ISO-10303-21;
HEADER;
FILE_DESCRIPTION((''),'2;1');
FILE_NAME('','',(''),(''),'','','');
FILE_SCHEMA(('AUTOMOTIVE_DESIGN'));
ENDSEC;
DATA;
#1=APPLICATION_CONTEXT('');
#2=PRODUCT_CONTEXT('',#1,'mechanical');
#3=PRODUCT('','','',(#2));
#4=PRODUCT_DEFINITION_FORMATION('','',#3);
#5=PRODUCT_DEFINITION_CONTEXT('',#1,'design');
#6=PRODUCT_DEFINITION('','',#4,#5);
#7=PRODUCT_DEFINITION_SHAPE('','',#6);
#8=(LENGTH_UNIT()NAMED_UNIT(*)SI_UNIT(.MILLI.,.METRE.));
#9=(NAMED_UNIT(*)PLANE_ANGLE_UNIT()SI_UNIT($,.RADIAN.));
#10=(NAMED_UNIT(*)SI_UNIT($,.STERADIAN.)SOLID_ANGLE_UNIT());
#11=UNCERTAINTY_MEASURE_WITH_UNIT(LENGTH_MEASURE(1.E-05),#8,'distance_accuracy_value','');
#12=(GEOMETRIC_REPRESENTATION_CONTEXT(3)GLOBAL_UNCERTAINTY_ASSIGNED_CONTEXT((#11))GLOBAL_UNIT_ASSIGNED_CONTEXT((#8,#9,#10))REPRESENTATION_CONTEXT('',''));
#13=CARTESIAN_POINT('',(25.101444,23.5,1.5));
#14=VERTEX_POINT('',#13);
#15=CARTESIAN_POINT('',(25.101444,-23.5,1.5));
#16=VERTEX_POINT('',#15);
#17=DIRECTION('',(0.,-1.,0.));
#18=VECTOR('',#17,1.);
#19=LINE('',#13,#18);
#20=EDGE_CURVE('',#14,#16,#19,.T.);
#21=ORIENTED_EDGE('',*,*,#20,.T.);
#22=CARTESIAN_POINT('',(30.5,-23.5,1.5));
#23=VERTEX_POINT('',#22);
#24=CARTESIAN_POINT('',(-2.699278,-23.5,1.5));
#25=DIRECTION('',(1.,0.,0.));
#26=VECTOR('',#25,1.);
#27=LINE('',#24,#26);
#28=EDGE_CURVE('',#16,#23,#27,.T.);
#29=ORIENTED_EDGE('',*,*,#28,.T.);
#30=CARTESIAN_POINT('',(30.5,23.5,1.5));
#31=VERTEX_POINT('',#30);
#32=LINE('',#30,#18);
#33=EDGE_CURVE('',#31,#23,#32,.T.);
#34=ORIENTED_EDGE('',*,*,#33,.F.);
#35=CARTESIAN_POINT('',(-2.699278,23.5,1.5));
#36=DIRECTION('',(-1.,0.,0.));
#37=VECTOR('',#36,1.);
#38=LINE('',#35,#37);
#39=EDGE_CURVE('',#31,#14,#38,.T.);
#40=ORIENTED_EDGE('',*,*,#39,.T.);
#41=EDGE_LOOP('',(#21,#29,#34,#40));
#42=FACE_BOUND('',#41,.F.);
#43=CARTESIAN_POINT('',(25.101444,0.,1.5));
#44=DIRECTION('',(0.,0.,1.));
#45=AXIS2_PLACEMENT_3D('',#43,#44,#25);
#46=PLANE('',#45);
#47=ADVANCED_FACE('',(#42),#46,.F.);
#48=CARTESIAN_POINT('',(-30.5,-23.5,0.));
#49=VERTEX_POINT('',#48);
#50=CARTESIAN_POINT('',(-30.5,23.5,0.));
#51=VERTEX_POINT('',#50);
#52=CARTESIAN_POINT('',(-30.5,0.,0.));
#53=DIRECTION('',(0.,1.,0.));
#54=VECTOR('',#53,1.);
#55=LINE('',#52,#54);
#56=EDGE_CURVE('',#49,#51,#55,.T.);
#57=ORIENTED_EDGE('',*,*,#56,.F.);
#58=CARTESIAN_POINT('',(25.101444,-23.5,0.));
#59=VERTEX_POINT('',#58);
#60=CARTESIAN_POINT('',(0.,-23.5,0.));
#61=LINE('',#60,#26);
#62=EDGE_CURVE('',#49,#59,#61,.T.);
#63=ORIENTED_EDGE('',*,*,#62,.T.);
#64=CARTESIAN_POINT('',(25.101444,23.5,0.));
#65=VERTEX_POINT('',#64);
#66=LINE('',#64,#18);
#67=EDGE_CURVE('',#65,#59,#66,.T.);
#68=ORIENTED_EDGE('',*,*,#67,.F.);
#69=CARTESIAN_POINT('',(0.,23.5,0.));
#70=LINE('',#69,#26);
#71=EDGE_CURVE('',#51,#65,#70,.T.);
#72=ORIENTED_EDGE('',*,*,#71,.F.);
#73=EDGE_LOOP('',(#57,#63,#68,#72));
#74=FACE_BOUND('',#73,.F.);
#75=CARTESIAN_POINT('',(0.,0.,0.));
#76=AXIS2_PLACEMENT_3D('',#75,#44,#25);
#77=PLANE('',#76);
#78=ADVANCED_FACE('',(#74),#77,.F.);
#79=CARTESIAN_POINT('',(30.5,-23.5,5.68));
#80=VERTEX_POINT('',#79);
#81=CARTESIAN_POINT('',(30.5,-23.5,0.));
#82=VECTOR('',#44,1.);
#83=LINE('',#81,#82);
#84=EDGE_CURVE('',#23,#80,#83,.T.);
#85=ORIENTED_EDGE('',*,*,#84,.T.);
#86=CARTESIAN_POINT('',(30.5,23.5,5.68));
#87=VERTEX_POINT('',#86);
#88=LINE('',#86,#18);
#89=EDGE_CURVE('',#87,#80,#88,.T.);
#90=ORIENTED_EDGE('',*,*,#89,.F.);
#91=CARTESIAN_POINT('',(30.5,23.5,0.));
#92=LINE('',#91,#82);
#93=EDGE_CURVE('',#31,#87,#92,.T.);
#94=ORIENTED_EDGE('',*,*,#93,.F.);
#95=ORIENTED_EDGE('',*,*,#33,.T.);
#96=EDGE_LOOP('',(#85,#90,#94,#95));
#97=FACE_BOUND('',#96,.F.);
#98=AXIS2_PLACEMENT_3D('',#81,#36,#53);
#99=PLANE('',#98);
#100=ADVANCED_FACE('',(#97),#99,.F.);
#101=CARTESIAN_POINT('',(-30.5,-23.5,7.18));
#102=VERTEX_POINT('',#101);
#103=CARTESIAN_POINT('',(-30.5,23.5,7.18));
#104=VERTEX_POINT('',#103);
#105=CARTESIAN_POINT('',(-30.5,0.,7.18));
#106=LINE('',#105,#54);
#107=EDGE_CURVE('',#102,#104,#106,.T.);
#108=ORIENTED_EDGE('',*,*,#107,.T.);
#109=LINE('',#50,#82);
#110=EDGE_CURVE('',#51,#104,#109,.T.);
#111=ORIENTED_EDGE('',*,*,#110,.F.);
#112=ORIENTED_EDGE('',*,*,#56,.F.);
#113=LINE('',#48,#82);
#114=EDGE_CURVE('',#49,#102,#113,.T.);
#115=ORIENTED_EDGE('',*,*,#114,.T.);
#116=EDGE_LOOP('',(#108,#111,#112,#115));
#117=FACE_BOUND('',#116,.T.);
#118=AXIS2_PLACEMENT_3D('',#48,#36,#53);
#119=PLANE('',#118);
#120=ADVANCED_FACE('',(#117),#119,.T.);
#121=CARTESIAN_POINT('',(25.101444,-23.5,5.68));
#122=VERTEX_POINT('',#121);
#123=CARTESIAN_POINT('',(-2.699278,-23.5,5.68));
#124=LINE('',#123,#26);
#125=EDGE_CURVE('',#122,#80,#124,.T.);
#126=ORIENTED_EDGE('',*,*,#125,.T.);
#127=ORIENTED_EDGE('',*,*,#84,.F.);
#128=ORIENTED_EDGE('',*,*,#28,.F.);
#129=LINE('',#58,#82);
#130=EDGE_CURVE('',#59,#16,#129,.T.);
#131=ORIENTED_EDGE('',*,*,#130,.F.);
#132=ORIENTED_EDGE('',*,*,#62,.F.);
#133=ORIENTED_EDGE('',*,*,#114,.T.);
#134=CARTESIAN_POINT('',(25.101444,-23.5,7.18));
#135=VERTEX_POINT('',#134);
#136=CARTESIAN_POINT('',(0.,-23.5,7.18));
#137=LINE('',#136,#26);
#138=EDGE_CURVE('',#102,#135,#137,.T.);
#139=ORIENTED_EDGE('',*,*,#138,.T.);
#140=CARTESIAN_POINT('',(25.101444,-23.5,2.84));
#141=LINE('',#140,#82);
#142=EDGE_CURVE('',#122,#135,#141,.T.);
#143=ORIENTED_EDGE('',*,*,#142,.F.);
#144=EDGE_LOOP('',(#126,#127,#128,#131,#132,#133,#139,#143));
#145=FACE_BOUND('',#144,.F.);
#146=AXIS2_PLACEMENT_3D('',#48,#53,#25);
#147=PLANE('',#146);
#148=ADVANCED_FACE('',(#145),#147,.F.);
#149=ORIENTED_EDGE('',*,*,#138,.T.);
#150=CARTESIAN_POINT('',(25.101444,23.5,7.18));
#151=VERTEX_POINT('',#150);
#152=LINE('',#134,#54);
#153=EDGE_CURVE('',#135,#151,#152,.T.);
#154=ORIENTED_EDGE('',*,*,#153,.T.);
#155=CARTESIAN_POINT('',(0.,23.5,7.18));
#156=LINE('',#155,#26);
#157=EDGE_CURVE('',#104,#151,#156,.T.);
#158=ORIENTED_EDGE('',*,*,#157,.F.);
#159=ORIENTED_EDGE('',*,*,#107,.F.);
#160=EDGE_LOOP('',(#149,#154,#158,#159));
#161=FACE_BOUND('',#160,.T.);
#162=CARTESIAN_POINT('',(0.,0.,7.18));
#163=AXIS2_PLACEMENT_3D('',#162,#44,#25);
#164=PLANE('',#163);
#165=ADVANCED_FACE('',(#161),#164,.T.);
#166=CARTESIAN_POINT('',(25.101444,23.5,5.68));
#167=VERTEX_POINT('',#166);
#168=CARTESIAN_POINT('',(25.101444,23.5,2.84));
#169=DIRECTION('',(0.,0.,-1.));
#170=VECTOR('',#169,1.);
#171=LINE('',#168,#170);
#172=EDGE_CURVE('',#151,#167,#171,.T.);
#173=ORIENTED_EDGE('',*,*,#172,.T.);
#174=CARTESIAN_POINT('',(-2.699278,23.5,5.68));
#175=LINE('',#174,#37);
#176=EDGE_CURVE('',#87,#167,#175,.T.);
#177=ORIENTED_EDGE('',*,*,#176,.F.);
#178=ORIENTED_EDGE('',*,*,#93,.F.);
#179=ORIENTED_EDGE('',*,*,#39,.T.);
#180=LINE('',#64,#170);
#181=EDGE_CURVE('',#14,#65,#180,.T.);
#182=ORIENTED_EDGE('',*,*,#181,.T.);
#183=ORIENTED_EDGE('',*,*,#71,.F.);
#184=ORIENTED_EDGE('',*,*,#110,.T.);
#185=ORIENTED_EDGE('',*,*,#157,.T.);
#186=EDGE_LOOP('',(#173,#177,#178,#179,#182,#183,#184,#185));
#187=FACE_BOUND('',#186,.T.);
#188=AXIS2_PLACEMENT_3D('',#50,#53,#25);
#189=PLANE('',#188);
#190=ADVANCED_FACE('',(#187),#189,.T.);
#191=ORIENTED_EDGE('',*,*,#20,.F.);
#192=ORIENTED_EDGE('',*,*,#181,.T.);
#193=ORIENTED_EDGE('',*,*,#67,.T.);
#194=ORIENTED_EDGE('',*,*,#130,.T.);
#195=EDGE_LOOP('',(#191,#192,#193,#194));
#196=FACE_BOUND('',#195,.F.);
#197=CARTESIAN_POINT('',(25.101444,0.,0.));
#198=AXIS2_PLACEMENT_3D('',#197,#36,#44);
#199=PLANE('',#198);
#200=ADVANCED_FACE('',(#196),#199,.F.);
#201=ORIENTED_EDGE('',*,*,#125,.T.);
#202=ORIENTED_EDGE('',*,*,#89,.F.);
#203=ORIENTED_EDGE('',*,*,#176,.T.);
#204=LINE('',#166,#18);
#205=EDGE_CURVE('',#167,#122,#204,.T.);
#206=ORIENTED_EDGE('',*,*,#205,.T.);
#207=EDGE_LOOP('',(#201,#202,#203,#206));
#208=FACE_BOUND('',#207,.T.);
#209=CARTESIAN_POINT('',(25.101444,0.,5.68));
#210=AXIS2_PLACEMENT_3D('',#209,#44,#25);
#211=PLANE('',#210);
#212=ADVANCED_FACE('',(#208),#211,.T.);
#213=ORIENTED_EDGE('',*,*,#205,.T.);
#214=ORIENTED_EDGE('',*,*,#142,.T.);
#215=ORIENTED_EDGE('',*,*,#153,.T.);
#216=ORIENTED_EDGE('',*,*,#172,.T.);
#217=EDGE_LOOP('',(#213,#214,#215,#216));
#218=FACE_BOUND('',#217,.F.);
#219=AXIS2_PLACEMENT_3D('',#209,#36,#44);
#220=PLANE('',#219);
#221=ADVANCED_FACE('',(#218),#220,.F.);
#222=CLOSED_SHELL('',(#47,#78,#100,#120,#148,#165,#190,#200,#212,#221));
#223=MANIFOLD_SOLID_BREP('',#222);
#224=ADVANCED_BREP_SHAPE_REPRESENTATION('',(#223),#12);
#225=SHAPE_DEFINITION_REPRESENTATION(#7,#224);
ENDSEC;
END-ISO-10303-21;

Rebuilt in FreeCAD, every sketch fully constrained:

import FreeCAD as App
import Part
import Sketcher
from FreeCAD import Vector

doc = App.newDocument("Part")
body = doc.addObject("PartDesign::Body", "Body")

# Sketch on XY plane
sketch1 = doc.addObject("Sketcher::SketchObject", "Sketch")
body.addObject(sketch1)
sketch1.AttachmentSupport = (doc.XY_Plane, [""])
sketch1.MapMode = "FlatFace"
sketch1.addGeometry(Part.LineSegment(Vector(-30, 24, 0), Vector(-30, -24, 0)), False)
sketch1.addGeometry(Part.LineSegment(Vector(-30, -24, 0), Vector(30, -24, 0)), False)
sketch1.addGeometry(Part.LineSegment(Vector(30, -24, 0), Vector(30, 24, 0)), False)
sketch1.addGeometry(Part.LineSegment(Vector(30, 24, 0), Vector(-30, 24, 0)), False)
sketch1.addConstraint(Sketcher.Constraint("Coincident", 0, 2, 1, 1))
sketch1.addConstraint(Sketcher.Constraint("Coincident", 1, 2, 2, 1))
sketch1.addConstraint(Sketcher.Constraint("Coincident", 2, 2, 3, 1))
sketch1.addConstraint(Sketcher.Constraint("Coincident", 3, 2, 0, 1))
sketch1.addConstraint(Sketcher.Constraint("Vertical", 0))
sketch1.addConstraint(Sketcher.Constraint("Horizontal", 1))
sketch1.addConstraint(Sketcher.Constraint("Vertical", 2))
sketch1.addConstraint(Sketcher.Constraint("Horizontal", 3))
sketch1.addConstraint(Sketcher.Constraint("Symmetric", 0, 2, 2, 2, -1, 1))
sketch1.addConstraint(Sketcher.Constraint("DistanceX", 1, 1, 1, 2, 61.0))
sketch1.addConstraint(Sketcher.Constraint("DistanceY", 0, 2, 0, 1, 47.0))
pad1 = doc.addObject("PartDesign::Pad", "Pad")
body.addObject(pad1)
pad1.Profile = sketch1
pad1.Length = 7.18

# Sketch on XZ plane
sketch2 = doc.addObject("Sketcher::SketchObject", "Sketch001")
body.addObject(sketch2)
sketch2.AttachmentSupport = (doc.XZ_Plane, [""])
sketch2.MapMode = "FlatFace"
sketch2.addGeometry(Part.LineSegment(Vector(25.1, 1.5, 0), Vector(25.1, 0, 0)), False)
sketch2.addGeometry(Part.LineSegment(Vector(25.1, 0, 0), Vector(30.5, 0, 0)), False)
sketch2.addGeometry(Part.LineSegment(Vector(30.5, 0, 0), Vector(30.5, 1.5, 0)), False)
sketch2.addGeometry(Part.LineSegment(Vector(30.5, 1.5, 0), Vector(25.1, 1.5, 0)), False)
sketch2.addGeometry(Part.LineSegment(Vector(25.1, 7.2, 0), Vector(25.1, 5.7, 0)), False)
sketch2.addGeometry(Part.LineSegment(Vector(25.1, 5.7, 0), Vector(30.5, 5.7, 0)), False)
sketch2.addGeometry(Part.LineSegment(Vector(30.5, 5.7, 0), Vector(30.5, 7.2, 0)), False)
sketch2.addGeometry(Part.LineSegment(Vector(30.5, 7.2, 0), Vector(25.1, 7.2, 0)), False)
sketch2.addConstraint(Sketcher.Constraint("Coincident", 0, 2, 1, 1))
sketch2.addConstraint(Sketcher.Constraint("Coincident", 1, 2, 2, 1))
sketch2.addConstraint(Sketcher.Constraint("Coincident", 2, 2, 3, 1))
sketch2.addConstraint(Sketcher.Constraint("Coincident", 3, 2, 0, 1))
sketch2.addConstraint(Sketcher.Constraint("Coincident", 4, 2, 5, 1))
sketch2.addConstraint(Sketcher.Constraint("Coincident", 5, 2, 6, 1))
sketch2.addConstraint(Sketcher.Constraint("Coincident", 6, 2, 7, 1))
sketch2.addConstraint(Sketcher.Constraint("Coincident", 7, 2, 4, 1))
sketch2.addConstraint(Sketcher.Constraint("Vertical", 0))
sketch2.addConstraint(Sketcher.Constraint("Horizontal", 1))
sketch2.addConstraint(Sketcher.Constraint("Vertical", 2))
sketch2.addConstraint(Sketcher.Constraint("Horizontal", 3))
sketch2.addConstraint(Sketcher.Constraint("Vertical", 4))
sketch2.addConstraint(Sketcher.Constraint("Horizontal", 5))
sketch2.addConstraint(Sketcher.Constraint("Vertical", 6))
sketch2.addConstraint(Sketcher.Constraint("Horizontal", 7))
sketch2.addConstraint(Sketcher.Constraint("PointOnObject", 0, 2, -1))
sketch2.addConstraint(Sketcher.Constraint("Vertical", 3, 2, 4, 2))
sketch2.addConstraint(Sketcher.Constraint("Vertical", 2, 2, 5, 2))
sketch2.addConstraint(Sketcher.Constraint("Equal", 2, 4))
sketch2.addConstraint(Sketcher.Constraint("DistanceY", 0, 2, 0, 1, 1.5))
sketch2.addConstraint(Sketcher.Constraint("DistanceX", -1, 1, 1, 2, 30.5))
sketch2.addConstraint(Sketcher.Constraint("DistanceY", -1, 1, 4, 2, 5.68))
sketch2.addConstraint(Sketcher.Constraint("DistanceX", 1, 1, 1, 2, 5.398556))
pocket1 = doc.addObject("PartDesign::Pocket", "Pocket")
body.addObject(pocket1)
pocket1.Profile = sketch2
pocket1.Type = "ThroughAll"
pocket1.Midplane = True

doc.recompute()
